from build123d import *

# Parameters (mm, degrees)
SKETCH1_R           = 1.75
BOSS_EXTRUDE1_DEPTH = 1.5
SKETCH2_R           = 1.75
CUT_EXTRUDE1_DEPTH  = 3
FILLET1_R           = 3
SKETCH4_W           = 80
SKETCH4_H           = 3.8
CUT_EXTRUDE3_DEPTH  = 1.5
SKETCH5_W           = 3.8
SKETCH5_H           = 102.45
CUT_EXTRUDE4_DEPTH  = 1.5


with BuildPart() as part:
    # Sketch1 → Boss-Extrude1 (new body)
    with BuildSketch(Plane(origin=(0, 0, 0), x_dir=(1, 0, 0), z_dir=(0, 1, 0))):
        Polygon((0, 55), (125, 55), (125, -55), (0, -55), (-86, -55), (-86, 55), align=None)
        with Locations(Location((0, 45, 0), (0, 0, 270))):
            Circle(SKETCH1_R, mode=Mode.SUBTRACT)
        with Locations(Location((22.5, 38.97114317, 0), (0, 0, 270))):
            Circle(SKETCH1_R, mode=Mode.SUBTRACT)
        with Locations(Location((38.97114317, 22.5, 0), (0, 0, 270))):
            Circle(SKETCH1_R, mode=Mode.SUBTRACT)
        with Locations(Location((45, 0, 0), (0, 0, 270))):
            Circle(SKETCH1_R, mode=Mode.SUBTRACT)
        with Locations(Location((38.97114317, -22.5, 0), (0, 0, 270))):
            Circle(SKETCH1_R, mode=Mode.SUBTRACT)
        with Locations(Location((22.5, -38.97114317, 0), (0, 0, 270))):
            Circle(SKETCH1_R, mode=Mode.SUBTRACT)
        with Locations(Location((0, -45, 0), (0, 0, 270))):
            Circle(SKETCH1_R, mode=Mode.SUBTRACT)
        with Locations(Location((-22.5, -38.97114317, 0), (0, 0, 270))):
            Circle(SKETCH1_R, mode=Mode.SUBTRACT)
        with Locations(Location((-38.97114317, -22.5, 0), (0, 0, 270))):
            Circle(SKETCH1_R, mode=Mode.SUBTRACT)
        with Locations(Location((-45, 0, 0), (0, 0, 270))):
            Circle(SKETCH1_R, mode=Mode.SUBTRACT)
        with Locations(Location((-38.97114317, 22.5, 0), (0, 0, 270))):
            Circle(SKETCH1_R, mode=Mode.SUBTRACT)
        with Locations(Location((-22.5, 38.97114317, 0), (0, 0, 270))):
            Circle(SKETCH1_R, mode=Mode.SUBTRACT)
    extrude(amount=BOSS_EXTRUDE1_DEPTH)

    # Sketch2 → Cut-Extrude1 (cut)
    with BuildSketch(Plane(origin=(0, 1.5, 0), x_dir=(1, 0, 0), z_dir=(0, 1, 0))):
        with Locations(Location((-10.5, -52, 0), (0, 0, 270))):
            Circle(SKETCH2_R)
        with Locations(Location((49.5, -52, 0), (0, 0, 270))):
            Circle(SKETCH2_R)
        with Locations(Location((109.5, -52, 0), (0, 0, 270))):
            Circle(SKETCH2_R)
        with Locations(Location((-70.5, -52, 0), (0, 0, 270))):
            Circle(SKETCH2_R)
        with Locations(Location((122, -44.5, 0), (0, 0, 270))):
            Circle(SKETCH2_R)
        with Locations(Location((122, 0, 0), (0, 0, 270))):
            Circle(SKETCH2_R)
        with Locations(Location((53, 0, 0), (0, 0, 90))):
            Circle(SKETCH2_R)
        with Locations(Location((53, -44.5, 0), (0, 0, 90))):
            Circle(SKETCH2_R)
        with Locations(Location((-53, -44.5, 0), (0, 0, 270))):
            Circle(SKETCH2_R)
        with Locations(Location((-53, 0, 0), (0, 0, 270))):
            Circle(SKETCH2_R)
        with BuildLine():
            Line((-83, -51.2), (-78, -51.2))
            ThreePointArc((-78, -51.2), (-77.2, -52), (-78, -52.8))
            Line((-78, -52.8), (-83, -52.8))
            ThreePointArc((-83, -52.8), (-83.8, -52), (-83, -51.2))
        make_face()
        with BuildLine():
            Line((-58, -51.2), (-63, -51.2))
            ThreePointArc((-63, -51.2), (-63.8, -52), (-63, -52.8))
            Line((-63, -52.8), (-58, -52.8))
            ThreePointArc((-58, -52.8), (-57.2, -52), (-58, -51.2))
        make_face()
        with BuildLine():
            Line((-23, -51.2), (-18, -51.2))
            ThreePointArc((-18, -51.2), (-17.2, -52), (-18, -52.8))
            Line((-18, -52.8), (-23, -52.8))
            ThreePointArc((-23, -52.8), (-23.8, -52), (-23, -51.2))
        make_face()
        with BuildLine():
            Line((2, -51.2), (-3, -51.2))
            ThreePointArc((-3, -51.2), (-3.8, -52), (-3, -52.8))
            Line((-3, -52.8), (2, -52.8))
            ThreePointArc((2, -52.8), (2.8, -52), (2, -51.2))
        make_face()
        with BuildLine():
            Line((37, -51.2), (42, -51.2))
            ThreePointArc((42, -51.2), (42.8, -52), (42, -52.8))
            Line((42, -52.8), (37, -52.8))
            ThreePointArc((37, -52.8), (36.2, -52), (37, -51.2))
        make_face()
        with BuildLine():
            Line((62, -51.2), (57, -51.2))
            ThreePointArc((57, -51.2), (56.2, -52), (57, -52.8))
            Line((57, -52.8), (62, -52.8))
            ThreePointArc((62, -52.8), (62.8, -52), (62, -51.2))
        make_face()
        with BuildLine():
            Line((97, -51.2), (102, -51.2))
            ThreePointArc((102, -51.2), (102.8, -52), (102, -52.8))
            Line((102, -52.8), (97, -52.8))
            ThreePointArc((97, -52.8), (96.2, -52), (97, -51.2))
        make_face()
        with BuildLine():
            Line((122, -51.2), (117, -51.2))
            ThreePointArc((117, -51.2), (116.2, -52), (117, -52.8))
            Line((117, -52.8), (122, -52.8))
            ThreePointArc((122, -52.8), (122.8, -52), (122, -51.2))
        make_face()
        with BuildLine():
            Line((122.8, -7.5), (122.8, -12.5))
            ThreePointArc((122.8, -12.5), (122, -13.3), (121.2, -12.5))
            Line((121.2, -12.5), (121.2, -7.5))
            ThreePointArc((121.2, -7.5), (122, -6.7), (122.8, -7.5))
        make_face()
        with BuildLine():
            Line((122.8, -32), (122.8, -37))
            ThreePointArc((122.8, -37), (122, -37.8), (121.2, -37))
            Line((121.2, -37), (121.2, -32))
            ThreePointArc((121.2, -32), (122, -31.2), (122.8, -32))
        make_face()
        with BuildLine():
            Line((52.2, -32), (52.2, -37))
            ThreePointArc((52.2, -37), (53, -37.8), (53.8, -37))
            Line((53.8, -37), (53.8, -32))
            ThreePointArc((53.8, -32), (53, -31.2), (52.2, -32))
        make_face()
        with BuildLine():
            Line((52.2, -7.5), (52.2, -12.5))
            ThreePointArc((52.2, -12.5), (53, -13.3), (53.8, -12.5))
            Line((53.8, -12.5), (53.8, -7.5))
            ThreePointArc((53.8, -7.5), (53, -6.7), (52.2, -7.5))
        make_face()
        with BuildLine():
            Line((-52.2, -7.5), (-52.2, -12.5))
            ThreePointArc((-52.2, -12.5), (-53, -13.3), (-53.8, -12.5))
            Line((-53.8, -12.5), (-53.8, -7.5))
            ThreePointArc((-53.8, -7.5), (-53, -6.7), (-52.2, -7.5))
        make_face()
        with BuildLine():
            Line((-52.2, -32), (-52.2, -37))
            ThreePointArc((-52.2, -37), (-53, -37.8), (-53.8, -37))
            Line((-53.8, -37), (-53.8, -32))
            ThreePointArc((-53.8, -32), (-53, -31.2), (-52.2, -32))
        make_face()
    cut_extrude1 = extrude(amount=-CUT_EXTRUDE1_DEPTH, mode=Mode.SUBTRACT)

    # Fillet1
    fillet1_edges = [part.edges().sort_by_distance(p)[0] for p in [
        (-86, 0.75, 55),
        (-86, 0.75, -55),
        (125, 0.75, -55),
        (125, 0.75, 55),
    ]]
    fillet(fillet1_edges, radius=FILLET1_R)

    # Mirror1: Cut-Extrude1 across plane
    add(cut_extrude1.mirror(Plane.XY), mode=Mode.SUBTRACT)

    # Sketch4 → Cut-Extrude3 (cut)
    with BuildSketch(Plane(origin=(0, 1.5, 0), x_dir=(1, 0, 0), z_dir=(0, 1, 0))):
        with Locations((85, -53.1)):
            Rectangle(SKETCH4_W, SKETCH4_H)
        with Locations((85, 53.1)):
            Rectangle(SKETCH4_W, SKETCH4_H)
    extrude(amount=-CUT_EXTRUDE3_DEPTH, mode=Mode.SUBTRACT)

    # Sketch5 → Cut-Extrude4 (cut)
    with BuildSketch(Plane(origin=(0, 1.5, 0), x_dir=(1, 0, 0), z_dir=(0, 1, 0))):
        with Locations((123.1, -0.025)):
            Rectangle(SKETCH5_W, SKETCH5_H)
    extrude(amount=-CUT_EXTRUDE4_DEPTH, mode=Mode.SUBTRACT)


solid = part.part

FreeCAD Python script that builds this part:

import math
import FreeCAD as App
import Part
import Sketcher

V = App.Vector


def edges_at(feature, points):
    """Names of the edges that pass closest to the given points."""
    edges = feature.Shape.Edges
    near = lambda p: min(range(len(edges)), key=lambda i: edges[i].distToShape(Part.Vertex(*p))[0])
    return sorted({f"Edge{near(p) + 1}" for p in points})


def add_polygon(sketch, points):
    """Adds a closed chain of lines whose ends are joined by coincident constraints."""
    first, n = sketch.GeometryCount, len(points)
    for a, b in zip(points, points[1:] + points[:1]):
        sketch.addGeometry(Part.LineSegment(App.Vector(*a, 0), App.Vector(*b, 0)), False)
    for i in range(n):
        sketch.addConstraint(Sketcher.Constraint("Coincident", first + i, 2, first + (i + 1) % n, 1))

doc = App.newDocument("Part")
body = doc.addObject("PartDesign::Body", "Body")

# Sketch on XZ plane
sketch1 = body.newObject("Sketcher::SketchObject", "Sketch")
sketch1.AttachmentSupport = (doc.getObject("XZ_Plane"), [""])
sketch1.MapMode = "FlatFace"
add_polygon(sketch1, [(125, -55), (-86, -55), (-86, 55), (125, 55)])  # lines 0-3
sketch1.addGeometry(Part.Circle(V(22.5, 38.971143, 0), V(0, 0, 1), 1.75), False)  # 4
sketch1.addGeometry(Part.Circle(V(0, 45, 0), V(0, 0, 1), 1.75), False)  # 5
sketch1.addGeometry(Part.Circle(V(38.971143, 22.5, 0), V(0, 0, 1), 1.75), False)  # 6
sketch1.addGeometry(Part.Circle(V(45, 0, 0), V(0, 0, 1), 1.75), False)  # 7
sketch1.addGeometry(Part.Circle(V(-22.5, 38.971143, 0), V(0, 0, 1), 1.75), False)  # 8
sketch1.addGeometry(Part.Circle(V(-38.971143, 22.5, 0), V(0, 0, 1), 1.75), False)  # 9
sketch1.addGeometry(Part.Circle(V(-45, 0, 0), V(0, 0, 1), 1.75), False)  # 10
sketch1.addGeometry(Part.Circle(V(38.971143, -22.5, 0), V(0, 0, 1), 1.75), False)  # 11
sketch1.addGeometry(Part.Circle(V(22.5, -38.971143, 0), V(0, 0, 1), 1.75), False)  # 12
sketch1.addGeometry(Part.Circle(V(0, -45, 0), V(0, 0, 1), 1.75), False)  # 13
sketch1.addGeometry(Part.Circle(V(-38.971143, -22.5, 0), V(0, 0, 1), 1.75), False)  # 14
sketch1.addGeometry(Part.Circle(V(-22.5, -38.971143, 0), V(0, 0, 1), 1.75), False)  # 15
sketch1.addConstraint([
    Sketcher.Constraint("Horizontal", 0),
    Sketcher.Constraint("Vertical", 1),
    Sketcher.Constraint("Horizontal", 2),
    Sketcher.Constraint("Vertical", 3),
    Sketcher.Constraint("Equal", 4, 5),
    Sketcher.Constraint("Equal", 5, 6),
    Sketcher.Constraint("Equal", 6, 7),
    Sketcher.Constraint("Equal", 7, 8),
    Sketcher.Constraint("Equal", 8, 9),
    Sketcher.Constraint("Equal", 9, 10),
    Sketcher.Constraint("Equal", 10, 11),
    Sketcher.Constraint("Equal", 11, 12),
    Sketcher.Constraint("Equal", 12, 13),
    Sketcher.Constraint("Equal", 13, 14),
    Sketcher.Constraint("Equal", 14, 15),
    Sketcher.Constraint("Symmetric", 7, 3, 10, 3, -1, 1),
    Sketcher.Constraint("Symmetric", 9, 3, 11, 3, -1, 1),
    Sketcher.Constraint("Symmetric", 8, 3, 12, 3, -1, 1),
    Sketcher.Constraint("Symmetric", 5, 3, 13, 3, -1, 1),
    Sketcher.Constraint("Symmetric", 6, 3, 14, 3, -1, 1),
    Sketcher.Constraint("Symmetric", 4, 3, 15, 3, -1, 1),
    Sketcher.Constraint("Symmetric", 4, 3, 8, 3, -2),
    Sketcher.Constraint("Symmetric", 6, 3, 9, 3, -2),
    Sketcher.Constraint("PointOnObject", 5, 3, -2),
    Sketcher.Constraint("PointOnObject", 7, 3, -1),
    Sketcher.Constraint("Diameter", 4, 3.5),
    Sketcher.Constraint("DistanceX", 0, 2, 0, 1, 211.0),
    Sketcher.Constraint("DistanceY", 1, 1, 1, 2, 110.0),
    Sketcher.Constraint("DistanceY", -1, 1, 5, 3, 45.0),
    Sketcher.Constraint("DistanceX", -1, 1, 7, 3, 45.0),
    Sketcher.Constraint("DistanceX", 0, 2, -1, 1, 86.0),
    Sketcher.Constraint("DistanceY", 0, 2, -1, 1, 55.0),
    Sketcher.Constraint("DistanceX", 8, 3, 4, 3, 45.0),
    Sketcher.Constraint("DistanceY", 11, 3, 6, 3, 45.0),
    Sketcher.Constraint("DistanceY", -1, 1, 4, 3, 38.971143),
    Sketcher.Constraint("DistanceX", -1, 1, 6, 3, 38.971143),
])
pad1 = body.newObject("PartDesign::Pad", "Pad")
pad1.Profile = sketch1
pad1.Length = 1.5
pad1.Reversed = True

# Sketch on XZ plane
sketch2 = body.newObject("Sketcher::SketchObject", "Sketch001")
sketch2.AttachmentSupport = (doc.getObject("XZ_Plane"), [""])
sketch2.MapMode = "FlatFace"
sketch2.AttachmentOffset = App.Placement(V(0, 0, -1.5), App.Rotation())
sketch2.addGeometry([
    Part.Circle(V(-10.5, 52, 0), V(0, 0, 1), 1.75),  # 0
    Part.Circle(V(49.5, 52, 0), V(0, 0, 1), 1.75),  # 1
    Part.Circle(V(109.5, 52, 0), V(0, 0, 1), 1.75),  # 2
    Part.Circle(V(-70.5, 52, 0), V(0, 0, 1), 1.75),  # 3
    Part.Circle(V(122, 44.5, 0), V(0, 0, 1), 1.75),  # 4
    Part.Circle(V(122, 0, 0), V(0, 0, 1), 1.75),  # 5
    Part.Circle(V(53, 0, 0), V(0, 0, 1), 1.75),  # 6
    Part.Circle(V(53, 44.5, 0), V(0, 0, 1), 1.75),  # 7
    Part.Circle(V(-53, 44.5, 0), V(0, 0, 1), 1.75),  # 8
    Part.Circle(V(-53, 0, 0), V(0, 0, 1), 1.75),  # 9
    Part.LineSegment(V(-78, 51.2, 0), V(-83, 51.2, 0)),  # 10
    Part.ArcOfCircle(Part.Circle(V(-83, 52, 0), V(0, 0, 1), 0.8), math.radians(90), math.radians(270)),  # 11
    Part.LineSegment(V(-83, 52.8, 0), V(-78, 52.8, 0)),  # 12
    Part.ArcOfCircle(Part.Circle(V(-78, 52, 0), V(0, 0, 1), 0.8), math.radians(-90), math.radians(90)),  # 13
    Part.LineSegment(V(-58, 51.2, 0), V(-63, 51.2, 0)),  # 14
    Part.ArcOfCircle(Part.Circle(V(-63, 52, 0), V(0, 0, 1), 0.8), math.radians(90), math.radians(270)),  # 15
    Part.LineSegment(V(-63, 52.8, 0), V(-58, 52.8, 0)),  # 16
    Part.ArcOfCircle(Part.Circle(V(-58, 52, 0), V(0, 0, 1), 0.8), math.radians(-90), math.radians(90)),  # 17
    Part.LineSegment(V(-18, 51.2, 0), V(-23, 51.2, 0)),  # 18
    Part.ArcOfCircle(Part.Circle(V(-23, 52, 0), V(0, 0, 1), 0.8), math.radians(90), math.radians(270)),  # 19
    Part.LineSegment(V(-23, 52.8, 0), V(-18, 52.8, 0)),  # 20
    Part.ArcOfCircle(Part.Circle(V(-18, 52, 0), V(0, 0, 1), 0.8), math.radians(-90), math.radians(90)),  # 21
    Part.LineSegment(V(2, 51.2, 0), V(-3, 51.2, 0)),  # 22
    Part.ArcOfCircle(Part.Circle(V(-3, 52, 0), V(0, 0, 1), 0.8), math.radians(90), math.radians(270)),  # 23
    Part.LineSegment(V(-3, 52.8, 0), V(2, 52.8, 0)),  # 24
    Part.ArcOfCircle(Part.Circle(V(2, 52, 0), V(0, 0, 1), 0.8), math.radians(-90), math.radians(90)),  # 25
    Part.LineSegment(V(42, 51.2, 0), V(37, 51.2, 0)),  # 26
    Part.ArcOfCircle(Part.Circle(V(37, 52, 0), V(0, 0, 1), 0.8), math.radians(90), math.radians(270)),  # 27
    Part.LineSegment(V(37, 52.8, 0), V(42, 52.8, 0)),  # 28
    Part.ArcOfCircle(Part.Circle(V(42, 52, 0), V(0, 0, 1), 0.8), math.radians(-90), math.radians(90)),  # 29
    Part.LineSegment(V(62, 51.2, 0), V(57, 51.2, 0)),  # 30
    Part.ArcOfCircle(Part.Circle(V(57, 52, 0), V(0, 0, 1), 0.8), math.radians(90), math.radians(270)),  # 31
    Part.LineSegment(V(57, 52.8, 0), V(62, 52.8, 0)),  # 32
    Part.ArcOfCircle(Part.Circle(V(62, 52, 0), V(0, 0, 1), 0.8), math.radians(-90), math.radians(90)),  # 33
    Part.LineSegment(V(102, 51.2, 0), V(97, 51.2, 0)),  # 34
    Part.ArcOfCircle(Part.Circle(V(97, 52, 0), V(0, 0, 1), 0.8), math.radians(90), math.radians(270)),  # 35
    Part.LineSegment(V(97, 52.8, 0), V(102, 52.8, 0)),  # 36
    Part.ArcOfCircle(Part.Circle(V(102, 52, 0), V(0, 0, 1), 0.8), math.radians(-90), math.radians(90)),  # 37
    Part.LineSegment(V(122, 51.2, 0), V(117, 51.2, 0)),  # 38
    Part.ArcOfCircle(Part.Circle(V(117, 52, 0), V(0, 0, 1), 0.8), math.radians(90), math.radians(270)),  # 39
    Part.LineSegment(V(117, 52.8, 0), V(122, 52.8, 0)),  # 40
    Part.ArcOfCircle(Part.Circle(V(122, 52, 0), V(0, 0, 1), 0.8), math.radians(-90), math.radians(90)),  # 41
    Part.LineSegment(V(122.8, 12.5, 0), V(122.8, 7.5, 0)),  # 42
    Part.ArcOfCircle(Part.Circle(V(122, 7.5, 0), V(0, 0, 1), 0.8), math.radians(180), math.radians(360)),  # 43
    Part.LineSegment(V(121.2, 7.5, 0), V(121.2, 12.5, 0)),  # 44
    Part.ArcOfCircle(Part.Circle(V(122, 12.5, 0), V(0, 0, 1), 0.8), math.radians(0), math.radians(180)),  # 45
    Part.LineSegment(V(122.8, 37, 0), V(122.8, 32, 0)),  # 46
    Part.ArcOfCircle(Part.Circle(V(122, 32, 0), V(0, 0, 1), 0.8), math.radians(180), math.radians(360)),  # 47
    Part.LineSegment(V(121.2, 32, 0), V(121.2, 37, 0)),  # 48
    Part.ArcOfCircle(Part.Circle(V(122, 37, 0), V(0, 0, 1), 0.8), math.radians(0), math.radians(180)),  # 49
    Part.LineSegment(V(52.2, 32, 0), V(52.2, 37, 0)),  # 50
    Part.ArcOfCircle(Part.Circle(V(53, 37, 0), V(0, 0, 1), 0.8), math.radians(0), math.radians(180)),  # 51
    Part.LineSegment(V(53.8, 37, 0), V(53.8, 32, 0)),  # 52
    Part.ArcOfCircle(Part.Circle(V(53, 32, 0), V(0, 0, 1), 0.8), math.radians(180), math.radians(360)),  # 53
    Part.LineSegment(V(52.2, 7.5, 0), V(52.2, 12.5, 0)),  # 54
    Part.ArcOfCircle(Part.Circle(V(53, 12.5, 0), V(0, 0, 1), 0.8), math.radians(0), math.radians(180)),  # 55
    Part.LineSegment(V(53.8, 12.5, 0), V(53.8, 7.5, 0)),  # 56
    Part.ArcOfCircle(Part.Circle(V(53, 7.5, 0), V(0, 0, 1), 0.8), math.radians(180), math.radians(360)),  # 57
    Part.LineSegment(V(-52.2, 12.5, 0), V(-52.2, 7.5, 0)),  # 58
    Part.ArcOfCircle(Part.Circle(V(-53, 7.5, 0), V(0, 0, 1), 0.8), math.radians(180), math.radians(360)),  # 59
    Part.LineSegment(V(-53.8, 7.5, 0), V(-53.8, 12.5, 0)),  # 60
    Part.ArcOfCircle(Part.Circle(V(-53, 12.5, 0), V(0, 0, 1), 0.8), math.radians(0), math.radians(180)),  # 61
    Part.LineSegment(V(-52.2, 37, 0), V(-52.2, 32, 0)),  # 62
    Part.ArcOfCircle(Part.Circle(V(-53, 32, 0), V(0, 0, 1), 0.8), math.radians(180), math.radians(360)),  # 63
    Part.LineSegment(V(-53.8, 32, 0), V(-53.8, 37, 0)),  # 64
    Part.ArcOfCircle(Part.Circle(V(-53, 37, 0), V(0, 0, 1), 0.8), math.radians(0), math.radians(180)),  # 65
], False)
sketch2.addConstraint([
    Sketcher.Constraint("Tangent", 10, 2, 11, 2),
    Sketcher.Constraint("Tangent", 11, 1, 12, 1),
    Sketcher.Constraint("Tangent", 12, 2, 13, 2),
    Sketcher.Constraint("Tangent", 13, 1, 10, 1),
    Sketcher.Constraint("Tangent", 14, 2, 15, 2),
    Sketcher.Constraint("Tangent", 15, 1, 16, 1),
    Sketcher.Constraint("Tangent", 16, 2, 17, 2),
    Sketcher.Constraint("Tangent", 17, 1, 14, 1),
    Sketcher.Constraint("Tangent", 18, 2, 19, 2),
    Sketcher.Constraint("Tangent", 19, 1, 20, 1),
    Sketcher.Constraint("Tangent", 20, 2, 21, 2),
    Sketcher.Constraint("Tangent", 21, 1, 18, 1),
    Sketcher.Constraint("Tangent", 22, 2, 23, 2),
    Sketcher.Constraint("Tangent", 23, 1, 24, 1),
    Sketcher.Constraint("Tangent", 24, 2, 25, 2),
    Sketcher.Constraint("Tangent", 25, 1, 22, 1),
    Sketcher.Constraint("Tangent", 26, 2, 27, 2),
    Sketcher.Constraint("Tangent", 27, 1, 28, 1),
    Sketcher.Constraint("Tangent", 28, 2, 29, 2),
    Sketcher.Constraint("Tangent", 29, 1, 26, 1),
    Sketcher.Constraint("Tangent", 30, 2, 31, 2),
    Sketcher.Constraint("Tangent", 31, 1, 32, 1),
    Sketcher.Constraint("Tangent", 32, 2, 33, 2),
    Sketcher.Constraint("Tangent", 33, 1, 30, 1),
    Sketcher.Constraint("Tangent", 34, 2, 35, 2),
    Sketcher.Constraint("Tangent", 35, 1, 36, 1),
    Sketcher.Constraint("Tangent", 36, 2, 37, 2),
    Sketcher.Constraint("Tangent", 37, 1, 34, 1),
    Sketcher.Constraint("Tangent", 38, 2, 39, 2),
    Sketcher.Constraint("Tangent", 39, 1, 40, 1),
    Sketcher.Constraint("Tangent", 40, 2, 41, 2),
    Sketcher.Constraint("Tangent", 41, 1, 38, 1),
    Sketcher.Constraint("Tangent", 42, 2, 43, 2),
    Sketcher.Constraint("Tangent", 43, 1, 44, 1),
    Sketcher.Constraint("Tangent", 44, 2, 45, 2),
    Sketcher.Constraint("Tangent", 45, 1, 42, 1),
    Sketcher.Constraint("Tangent", 46, 2, 47, 2),
    Sketcher.Constraint("Tangent", 47, 1, 48, 1),
    Sketcher.Constraint("Tangent", 48, 2, 49, 2),
    Sketcher.Constraint("Tangent", 49, 1, 46, 1),
    Sketcher.Constraint("Tangent", 50, 2, 51, 2),
    Sketcher.Constraint("Tangent", 51, 1, 52, 1),
    Sketcher.Constraint("Tangent", 52, 2, 53, 2),
    Sketcher.Constraint("Tangent", 53, 1, 50, 1),
    Sketcher.Constraint("Tangent", 54, 2, 55, 2),
    Sketcher.Constraint("Tangent", 55, 1, 56, 1),
    Sketcher.Constraint("Tangent", 56, 2, 57, 2),
    Sketcher.Constraint("Tangent", 57, 1, 54, 1),
    Sketcher.Constraint("Tangent", 58, 2, 59, 2),
    Sketcher.Constraint("Tangent", 59, 1, 60, 1),
    Sketcher.Constraint("Tangent", 60, 2, 61, 2),
    Sketcher.Constraint("Tangent", 61, 1, 58, 1),
    Sketcher.Constraint("Tangent", 62, 2, 63, 2),
    Sketcher.Constraint("Tangent", 63, 1, 64, 1),
    Sketcher.Constraint("Tangent", 64, 2, 65, 2),
    Sketcher.Constraint("Tangent", 65, 1, 62, 1),
    Sketcher.Constraint("Horizontal", 10),
    Sketcher.Constraint("Horizontal", 12),
    Sketcher.Constraint("Horizontal", 14),
    Sketcher.Constraint("Horizontal", 16),
    Sketcher.Constraint("Horizontal", 18),
    Sketcher.Constraint("Horizontal", 20),
    Sketcher.Constraint("Horizontal", 22),
    Sketcher.Constraint("Horizontal", 24),
    Sketcher.Constraint("Horizontal", 26),
    Sketcher.Constraint("Horizontal", 28),
    Sketcher.Constraint("Horizontal", 30),
    Sketcher.Constraint("Horizontal", 32),
    Sketcher.Constraint("Horizontal", 34),
    Sketcher.Constraint("Horizontal", 36),
    Sketcher.Constraint("Horizontal", 38),
    Sketcher.Constraint("Horizontal", 40),
    Sketcher.Constraint("Vertical", 42),
    Sketcher.Constraint("Vertical", 44),
    Sketcher.Constraint("Vertical", 46),
    Sketcher.Constraint("Vertical", 48),
    Sketcher.Constraint("Vertical", 50),
    Sketcher.Constraint("Vertical", 52),
    Sketcher.Constraint("Vertical", 54),
    Sketcher.Constraint("Vertical", 56),
    Sketcher.Constraint("Vertical", 58),
    Sketcher.Constraint("Vertical", 60),
    Sketcher.Constraint("Vertical", 62),
    Sketcher.Constraint("Vertical", 64),
    Sketcher.Constraint("Equal", 0, 1),
    Sketcher.Constraint("Equal", 1, 2),
    Sketcher.Constraint("Equal", 2, 3),
    Sketcher.Constraint("Equal", 3, 4),
    Sketcher.Constraint("Equal", 4, 5),
    Sketcher.Constraint("Equal", 5, 6),
    Sketcher.Constraint("Equal", 6, 7),
    Sketcher.Constraint("Equal", 7, 8),
    Sketcher.Constraint("Equal", 8, 9),
    Sketcher.Constraint("Equal", 13, 15),
    Sketcher.Constraint("Equal", 17, 19),
    Sketcher.Constraint("Equal", 21, 23),
    Sketcher.Constraint("Equal", 25, 27),
    Sketcher.Constraint("Equal", 29, 31),
    Sketcher.Constraint("Equal", 33, 35),
    Sketcher.Constraint("Equal", 37, 39),
    Sketcher.Constraint("Equal", 41, 43),
    Sketcher.Constraint("Equal", 45, 47),
    Sketcher.Constraint("Equal", 49, 51),
    Sketcher.Constraint("Equal", 53, 55),
    Sketcher.Constraint("Equal", 57, 59),
    Sketcher.Constraint("Equal", 61, 63),
    Sketcher.Constraint("Symmetric", 6, 3, 9, 3, -1, 1),
    Sketcher.Constraint("Symmetric", 7, 3, 8, 3, -2),
    Sketcher.Constraint("Symmetric", 57, 3, 59, 3, -2),
    Sketcher.Constraint("Symmetric", 53, 3, 63, 3, -2),
    Sketcher.Constraint("PointOnObject", 5, 3, -1),
    Sketcher.Constraint("PointOnObject", 6, 3, -1),
    Sketcher.Constraint("Horizontal", 0, 3, 1, 3),
    Sketcher.Constraint("Horizontal", 1, 3, 2, 3),
    Sketcher.Constraint("Horizontal", 2, 3, 3, 3),
    Sketcher.Constraint("Horizontal", 4, 3, 7, 3),
    Sketcher.Constraint("Horizontal", 3, 3, 11, 3),
    Sketcher.Constraint("Horizontal", 13, 3, 15, 3),
    Sketcher.Constraint("Horizontal", 17, 3, 19, 3),
    Sketcher.Constraint("Horizontal", 21, 3, 23, 3),
    Sketcher.Constraint("Horizontal", 25, 3, 27, 3),
    Sketcher.Constraint("Horizontal", 29, 3, 31, 3),
    Sketcher.Constraint("Horizontal", 33, 3, 35, 3),
    Sketcher.Constraint("Horizontal", 37, 3, 39, 3),
    Sketcher.Constraint("Horizontal", 49, 3, 51, 3),
    Sketcher.Constraint("Horizontal", 47, 3, 53, 3),
    Sketcher.Constraint("Horizontal", 45, 3, 55, 3),
    Sketcher.Constraint("Horizontal", 43, 3, 57, 3),
    Sketcher.Constraint("Horizontal", 55, 3, 61, 3),
    Sketcher.Constraint("Horizontal", 51, 3, 65, 3),
    Sketcher.Constraint("Vertical", 4, 3, 5, 3),
    Sketcher.Constraint("Vertical", 6, 3, 7, 3),
    Sketcher.Constraint("Vertical", 5, 3, 41, 3),
    Sketcher.Constraint("Vertical", 41, 3, 43, 3),
    Sketcher.Constraint("Vertical", 45, 3, 47, 3),
    Sketcher.Constraint("Vertical", 7, 3, 51, 3),
    Sketcher.Constraint("Vertical", 53, 3, 55, 3),
    Sketcher.Constraint("Equal", 12, 14),
    Sketcher.Constraint("Equal", 16, 18),
    Sketcher.Constraint("Equal", 20, 22),
    Sketcher.Constraint("Equal", 24, 26),
    Sketcher.Constraint("Equal", 28, 30),
    Sketcher.Constraint("Equal", 32, 34),
    Sketcher.Constraint("Equal", 36, 38),
    Sketcher.Constraint("Equal", 40, 42),
    Sketcher.Constraint("Equal", 44, 46),
    Sketcher.Constraint("Diameter", 0, 3.5),
    Sketcher.Constraint("Radius", 11, 0.8),
    Sketcher.Constraint("DistanceX", 10, 2, 10, 1, 5.0),
    Sketcher.Constraint("DistanceY", -1, 1, 0, 3, 52.0),
    Sketcher.Constraint("DistanceX", -1, 1, 4, 3, 122.0),
    Sketcher.Constraint("DistanceX", -1, 1, 6, 3, 53.0),
    Sketcher.Constraint("DistanceX", 11, 3, -1, 1, 83.0),
    Sketcher.Constraint("DistanceX", 15, 3, -1, 1, 63.0),
    Sketcher.Constraint("DistanceX", 19, 3, -1, 1, 23.0),
    Sketcher.Constraint("DistanceX", 23, 3, -1, 1, 3.0),
    Sketcher.Constraint("DistanceX", -1, 1, 27, 3, 37.0),
    Sketcher.Constraint("DistanceX", -1, 1, 31, 3, 57.0),
    Sketcher.Constraint("DistanceX", -1, 1, 35, 3, 97.0),
    Sketcher.Constraint("DistanceY", -1, 1, 47, 3, 32.0),
    Sketcher.Constraint("DistanceX", 0, 3, -1, 1, 10.5),
    Sketcher.Constraint("DistanceX", -1, 1, 1, 3, 49.5),
    Sketcher.Constraint("DistanceX", -1, 1, 2, 3, 109.5),
    Sketcher.Constraint("DistanceX", 3, 3, -1, 1, 70.5),
    Sketcher.Constraint("DistanceY", -1, 1, 4, 3, 44.5),
    Sketcher.Constraint("DistanceY", -1, 1, 43, 3, 7.5),
])
pocket1 = body.newObject("PartDesign::Pocket", "Pocket")
pocket1.Profile = sketch2
pocket1.Length = 3
pocket1.Reversed = True
doc.recompute()

fillet = body.newObject("PartDesign::Fillet", "Fillet")
fillet.Base = (pocket1, edges_at(pocket1, [
    (-86, 0.75, 55),
    (-86, 0.75, -55),
    (125, 0.75, -55),
    (125, 0.75, 55),
]))
fillet.Radius = 3
doc.recompute()

mirrored = body.newObject("PartDesign::Mirrored", "Mirrored")
mirrored.Originals = [pocket1]
mirrored.MirrorPlane = (doc.getObject("XY_Plane"), [""])
body.Tip = mirrored

# Sketch on XZ plane
sketch3 = body.newObject("Sketcher::SketchObject", "Sketch002")
sketch3.AttachmentSupport = (doc.getObject("XZ_Plane"), [""])
sketch3.MapMode = "FlatFace"
sketch3.AttachmentOffset = App.Placement(V(0, 0, -1.5), App.Rotation())
add_polygon(sketch3, [(45, 51.2), (45, 55), (125, 55), (125, 51.2)])  # lines 0-3
add_polygon(sketch3, [(45, -55), (45, -51.2), (125, -51.2), (125, -55)])  # lines 4-7
sketch3.addConstraint([
    Sketcher.Constraint("Vertical", 0),
    Sketcher.Constraint("Horizontal", 1),
    Sketcher.Constraint("Vertical", 2),
    Sketcher.Constraint("Horizontal", 3),
    Sketcher.Constraint("Vertical", 4),
    Sketcher.Constraint("Horizontal", 5),
    Sketcher.Constraint("Vertical", 6),
    Sketcher.Constraint("Horizontal", 7),
    Sketcher.Constraint("Symmetric", 3, 2, 4, 2, -1),
    Sketcher.Constraint("Symmetric", 1, 2, 6, 2, -1),
    Sketcher.Constraint("DistanceX", 1, 1, 1, 2, 80.0),
    Sketcher.Constraint("DistanceY", 0, 1, 0, 2, 3.8),
    Sketcher.Constraint("DistanceX", -1, 1, 0, 2, 45.0),
    Sketcher.Constraint("DistanceY", -1, 1, 0, 2, 55.0),
])
pocket2 = body.newObject("PartDesign::Pocket", "Pocket001")
pocket2.Profile = sketch3
pocket2.Length = 1.5
pocket2.Reversed = True

# Sketch on XZ plane
sketch4 = body.newObject("Sketcher::SketchObject", "Sketch003")
sketch4.AttachmentSupport = (doc.getObject("XZ_Plane"), [""])
sketch4.MapMode = "FlatFace"
sketch4.AttachmentOffset = App.Placement(V(0, 0, -1.5), App.Rotation())
add_polygon(sketch4, [(121.2, -51.2), (121.2, 51.25), (125, 51.25), (125, -51.2)])  # lines 0-3
sketch4.addConstraint([
    Sketcher.Constraint("Vertical", 0),
    Sketcher.Constraint("Horizontal", 1),
    Sketcher.Constraint("Vertical", 2),
    Sketcher.Constraint("Horizontal", 3),
    Sketcher.Constraint("DistanceX", 1, 1, 1, 2, 3.8),
    Sketcher.Constraint("DistanceX", -1, 1, 1, 2, 125.0),
    Sketcher.Constraint("DistanceY", 0, 1, 0, 2, 102.45),
    Sketcher.Constraint("DistanceY", 2, 2, -1, 1, 51.2),
])
pocket3 = body.newObject("PartDesign::Pocket", "Pocket002")
pocket3.Profile = sketch4
pocket3.Length = 1.5
pocket3.Reversed = True

doc.recompute()
